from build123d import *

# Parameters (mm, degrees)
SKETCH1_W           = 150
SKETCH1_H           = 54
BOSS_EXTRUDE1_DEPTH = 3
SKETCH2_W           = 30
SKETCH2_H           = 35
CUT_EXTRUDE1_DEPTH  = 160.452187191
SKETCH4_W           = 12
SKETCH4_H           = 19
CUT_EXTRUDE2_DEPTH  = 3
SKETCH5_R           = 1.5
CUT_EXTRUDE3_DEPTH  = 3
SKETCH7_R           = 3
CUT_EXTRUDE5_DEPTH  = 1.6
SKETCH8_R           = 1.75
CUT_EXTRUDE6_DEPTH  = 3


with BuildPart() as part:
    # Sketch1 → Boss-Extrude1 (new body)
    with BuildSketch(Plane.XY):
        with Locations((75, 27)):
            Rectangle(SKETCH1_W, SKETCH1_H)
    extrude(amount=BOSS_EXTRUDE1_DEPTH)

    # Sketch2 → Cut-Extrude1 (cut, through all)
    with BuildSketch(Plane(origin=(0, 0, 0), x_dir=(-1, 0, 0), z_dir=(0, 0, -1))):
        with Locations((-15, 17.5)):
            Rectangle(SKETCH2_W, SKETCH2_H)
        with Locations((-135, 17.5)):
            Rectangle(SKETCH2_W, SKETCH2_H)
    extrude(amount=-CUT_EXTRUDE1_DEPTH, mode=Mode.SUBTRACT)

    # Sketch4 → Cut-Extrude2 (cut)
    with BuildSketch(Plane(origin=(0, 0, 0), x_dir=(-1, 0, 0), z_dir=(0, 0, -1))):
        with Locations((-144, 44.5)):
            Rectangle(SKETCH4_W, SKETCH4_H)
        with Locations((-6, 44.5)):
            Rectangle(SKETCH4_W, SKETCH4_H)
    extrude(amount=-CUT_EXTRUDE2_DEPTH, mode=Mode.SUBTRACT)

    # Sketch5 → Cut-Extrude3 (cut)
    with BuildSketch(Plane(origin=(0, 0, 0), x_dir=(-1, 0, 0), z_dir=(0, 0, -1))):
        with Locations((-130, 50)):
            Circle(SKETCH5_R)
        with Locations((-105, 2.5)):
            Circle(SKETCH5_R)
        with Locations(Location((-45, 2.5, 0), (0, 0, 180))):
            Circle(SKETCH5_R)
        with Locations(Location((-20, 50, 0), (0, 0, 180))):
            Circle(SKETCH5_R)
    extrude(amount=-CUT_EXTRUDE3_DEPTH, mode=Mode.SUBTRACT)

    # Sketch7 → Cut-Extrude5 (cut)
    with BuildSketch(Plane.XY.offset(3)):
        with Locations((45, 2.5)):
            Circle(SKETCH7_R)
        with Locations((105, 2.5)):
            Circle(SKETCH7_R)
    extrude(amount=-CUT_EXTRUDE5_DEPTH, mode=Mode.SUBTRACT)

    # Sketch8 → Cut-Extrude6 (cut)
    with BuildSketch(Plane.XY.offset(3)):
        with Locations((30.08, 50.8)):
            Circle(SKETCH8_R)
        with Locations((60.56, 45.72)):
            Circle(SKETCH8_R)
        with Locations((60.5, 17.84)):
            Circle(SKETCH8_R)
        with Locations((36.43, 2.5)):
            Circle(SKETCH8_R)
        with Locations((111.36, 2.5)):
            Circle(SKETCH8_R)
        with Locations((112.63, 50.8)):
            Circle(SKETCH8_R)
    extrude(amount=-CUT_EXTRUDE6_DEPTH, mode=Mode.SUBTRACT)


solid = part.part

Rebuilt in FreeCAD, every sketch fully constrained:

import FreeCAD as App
import Part
import Sketcher

doc = App.newDocument("Part")
params = doc.addObject("Spreadsheet::Sheet", "Params")
for row, (alias, value) in enumerate([
    ("sketch1_width", "150 mm"),
    ("sketch1_height", "54 mm"),
    ("pad1_length", "3 mm"),
    ("sketch2_width", "30 mm"),
    ("sketch2_height", "35 mm"),
    ("sketch3_width", "12 mm"),
    ("sketch3_height", "19 mm"),
    ("pocket2_length", "3 mm"),
    ("sketch4_diameter", "3 mm"),
    ("pocket3_length", "3 mm"),
    ("sketch5_diameter", "6 mm"),
    ("pocket4_length", "1.6 mm"),
    ("sketch6_diameter", "3.5 mm"),
    ("pocket5_length", "3 mm"),
], start=1):
    params.set(f"A{row}", alias)
    params.set(f"B{row}", "=" + value)
    params.setAlias(f"B{row}", alias)

body = doc.addObject("PartDesign::Body", "Body")

# Sketch on XY plane
sketch1 = body.newObject("Sketcher::SketchObject", "Sketch")
sketch1.AttachmentSupport = (doc.getObject("XY_Plane"), [""])
sketch1.MapMode = "FlatFace"
sketch1.addGeometry([
    Part.LineSegment(App.Vector(0, 54, 0), App.Vector(0, 0, 0)),
    Part.LineSegment(App.Vector(0, 0, 0), App.Vector(150, 0, 0)),
    Part.LineSegment(App.Vector(150, 0, 0), App.Vector(150, 54, 0)),
    Part.LineSegment(App.Vector(150, 54, 0), App.Vector(0, 54, 0)),
], False)
sketch1.addConstraint([
    Sketcher.Constraint("Coincident", 0, 2, 1, 1),
    Sketcher.Constraint("Coincident", 1, 2, 2, 1),
    Sketcher.Constraint("Coincident", 2, 2, 3, 1),
    Sketcher.Constraint("Coincident", 3, 2, 0, 1),
    Sketcher.Constraint("Vertical", 0),
    Sketcher.Constraint("Horizontal", 1),
    Sketcher.Constraint("Vertical", 2),
    Sketcher.Constraint("Horizontal", 3),
    Sketcher.Constraint("Coincident", 0, 2, -1, 1),
    Sketcher.Constraint("DistanceX", 1, 1, 1, 2, 150.0),
    Sketcher.Constraint("DistanceY", 0, 2, 0, 1, 54.0),
])
sketch1.setExpression("Constraints[9]", "Params.sketch1_width")
sketch1.setExpression("Constraints[10]", "Params.sketch1_height")
pad1 = body.newObject("PartDesign::Pad", "Pad")
pad1.Profile = sketch1
pad1.setExpression("Length", "Params.pad1_length")

# Sketch on XY plane
sketch2 = body.newObject("Sketcher::SketchObject", "Sketch001")
sketch2.AttachmentSupport = (doc.getObject("XY_Plane"), [""])
sketch2.MapMode = "FlatFace"
sketch2.addGeometry([
    Part.LineSegment(App.Vector(30, 35, 0), App.Vector(30, 0, 0)),  # 0
    Part.LineSegment(App.Vector(30, 0, 0), App.Vector(0, 0, 0)),  # 1
    Part.LineSegment(App.Vector(0, 0, 0), App.Vector(0, 35, 0)),  # 2
    Part.LineSegment(App.Vector(0, 35, 0), App.Vector(30, 35, 0)),  # 3
    Part.LineSegment(App.Vector(150, 35, 0), App.Vector(150, 0, 0)),  # 4
    Part.LineSegment(App.Vector(150, 0, 0), App.Vector(120, 0, 0)),  # 5
    Part.LineSegment(App.Vector(120, 0, 0), App.Vector(120, 35, 0)),  # 6
    Part.LineSegment(App.Vector(120, 35, 0), App.Vector(150, 35, 0)),  # 7
], False)
sketch2.addConstraint([
    Sketcher.Constraint("Coincident", 0, 2, 1, 1),
    Sketcher.Constraint("Coincident", 1, 2, 2, 1),
    Sketcher.Constraint("Coincident", 2, 2, 3, 1),
    Sketcher.Constraint("Coincident", 3, 2, 0, 1),
    Sketcher.Constraint("Coincident", 4, 2, 5, 1),
    Sketcher.Constraint("Coincident", 5, 2, 6, 1),
    Sketcher.Constraint("Coincident", 6, 2, 7, 1),
    Sketcher.Constraint("Coincident", 7, 2, 4, 1),
    Sketcher.Constraint("Vertical", 0),
    Sketcher.Constraint("Horizontal", 1),
    Sketcher.Constraint("Vertical", 2),
    Sketcher.Constraint("Horizontal", 3),
    Sketcher.Constraint("Vertical", 4),
    Sketcher.Constraint("Horizontal", 5),
    Sketcher.Constraint("Vertical", 6),
    Sketcher.Constraint("Horizontal", 7),
    Sketcher.Constraint("Coincident", 1, 2, -1, 1),
    Sketcher.Constraint("PointOnObject", 4, 2, -1),
    Sketcher.Constraint("Horizontal", 3, 2, 6, 2),
    Sketcher.Constraint("Equal", 3, 5),
    Sketcher.Constraint("DistanceX", 1, 2, 1, 1, 30.0),
    Sketcher.Constraint("DistanceY", 0, 2, 0, 1, 35.0),
    Sketcher.Constraint("DistanceX", -1, 1, 4, 2, 150.0),
])
sketch2.setExpression("Constraints[20]", "Params.sketch2_width")
sketch2.setExpression("Constraints[21]", "Params.sketch2_height")
pocket1 = body.newObject("PartDesign::Pocket", "Pocket")
pocket1.Profile = sketch2
pocket1.Type = "ThroughAll"
pocket1.Reversed = True

# Sketch on XY plane
sketch3 = body.newObject("Sketcher::SketchObject", "Sketch002")
sketch3.AttachmentSupport = (doc.getObject("XY_Plane"), [""])
sketch3.MapMode = "FlatFace"
sketch3.addGeometry([
    Part.LineSegment(App.Vector(150, 54, 0), App.Vector(150, 35, 0)),  # 0
    Part.LineSegment(App.Vector(150, 35, 0), App.Vector(138, 35, 0)),  # 1
    Part.LineSegment(App.Vector(138, 35, 0), App.Vector(138, 54, 0)),  # 2
    Part.LineSegment(App.Vector(138, 54, 0), App.Vector(150, 54, 0)),  # 3
    Part.LineSegment(App.Vector(12, 54, 0), App.Vector(12, 35, 0)),  # 4
    Part.LineSegment(App.Vector(12, 35, 0), App.Vector(0, 35, 0)),  # 5
    Part.LineSegment(App.Vector(0, 35, 0), App.Vector(0, 54, 0)),  # 6
    Part.LineSegment(App.Vector(0, 54, 0), App.Vector(12, 54, 0)),  # 7
], False)
sketch3.addConstraint([
    Sketcher.Constraint("Coincident", 0, 2, 1, 1),
    Sketcher.Constraint("Coincident", 1, 2, 2, 1),
    Sketcher.Constraint("Coincident", 2, 2, 3, 1),
    Sketcher.Constraint("Coincident", 3, 2, 0, 1),
    Sketcher.Constraint("Coincident", 4, 2, 5, 1),
    Sketcher.Constraint("Coincident", 5, 2, 6, 1),
    Sketcher.Constraint("Coincident", 6, 2, 7, 1),
    Sketcher.Constraint("Coincident", 7, 2, 4, 1),
    Sketcher.Constraint("Vertical", 0),
    Sketcher.Constraint("Horizontal", 1),
    Sketcher.Constraint("Vertical", 2),
    Sketcher.Constraint("Horizontal", 3),
    Sketcher.Constraint("Vertical", 4),
    Sketcher.Constraint("Horizontal", 5),
    Sketcher.Constraint("Vertical", 6),
    Sketcher.Constraint("Horizontal", 7),
    Sketcher.Constraint("PointOnObject", 5, 2, -2),
    Sketcher.Constraint("Horizontal", 1, 2, 4, 2),
    Sketcher.Constraint("Horizontal", 3, 2, 6, 2),
    Sketcher.Constraint("Equal", 3, 5),
    Sketcher.Constraint("DistanceX", 1, 2, 1, 1, 12.0),
    Sketcher.Constraint("DistanceY", 0, 2, 0, 1, 19.0),
    Sketcher.Constraint("DistanceX", -1, 1, 0, 2, 150.0),
    Sketcher.Constraint("DistanceY", -1, 1, 0, 2, 35.0),
])
sketch3.setExpression("Constraints[20]", "Params.sketch3_width")
sketch3.setExpression("Constraints[21]", "Params.sketch3_height")
pocket2 = body.newObject("PartDesign::Pocket", "Pocket001")
pocket2.Profile = sketch3
pocket2.setExpression("Length", "Params.pocket2_length")
pocket2.Reversed = True

# Sketch on XY plane
sketch4 = body.newObject("Sketcher::SketchObject", "Sketch003")
sketch4.AttachmentSupport = (doc.getObject("XY_Plane"), [""])
sketch4.MapMode = "FlatFace"
sketch4.addGeometry([
    Part.Circle(App.Vector(130, 50, 0), App.Vector(0, 0, 1), 1.5),
    Part.Circle(App.Vector(105, 2.5, 0), App.Vector(0, 0, 1), 1.5),
    Part.Circle(App.Vector(45, 2.5, 0), App.Vector(0, 0, 1), 1.5),
    Part.Circle(App.Vector(20, 50, 0), App.Vector(0, 0, 1), 1.5),
], False)
sketch4.addConstraint([
    Sketcher.Constraint("Equal", 0, 1),
    Sketcher.Constraint("Equal", 1, 2),
    Sketcher.Constraint("Equal", 2, 3),
    Sketcher.Constraint("Horizontal", 1, 3, 2, 3),
    Sketcher.Constraint("Horizontal", 0, 3, 3, 3),
    Sketcher.Constraint("Diameter", 0, 3.0),
    Sketcher.Constraint("DistanceX", -1, 1, 0, 3, 130.0),
    Sketcher.Constraint("DistanceY", -1, 1, 0, 3, 50.0),
    Sketcher.Constraint("DistanceX", -1, 1, 1, 3, 105.0),
    Sketcher.Constraint("DistanceX", -1, 1, 2, 3, 45.0),
    Sketcher.Constraint("DistanceX", -1, 1, 3, 3, 20.0),
    Sketcher.Constraint("DistanceY", -1, 1, 1, 3, 2.5),
])
sketch4.setExpression("Constraints[5]", "Params.sketch4_diameter")
pocket3 = body.newObject("PartDesign::Pocket", "Pocket002")
pocket3.Profile = sketch4
pocket3.setExpression("Length", "Params.pocket3_length")
pocket3.Reversed = True

# Sketch on XY plane
sketch5 = body.newObject("Sketcher::SketchObject", "Sketch004")
sketch5.AttachmentSupport = (doc.getObject("XY_Plane"), [""])
sketch5.MapMode = "FlatFace"
sketch5.AttachmentOffset = App.Placement(App.Vector(0, 0, 3), App.Rotation())
sketch5.addGeometry([
    Part.Circle(App.Vector(45, 2.5, 0), App.Vector(0, 0, 1), 3),
    Part.Circle(App.Vector(105, 2.5, 0), App.Vector(0, 0, 1), 3),
], False)
sketch5.addConstraint([
    Sketcher.Constraint("Equal", 0, 1),
    Sketcher.Constraint("Horizontal", 0, 3, 1, 3),
    Sketcher.Constraint("Diameter", 0, 6.0),
    Sketcher.Constraint("DistanceX", -1, 1, 0, 3, 45.0),
    Sketcher.Constraint("DistanceX", -1, 1, 1, 3, 105.0),
    Sketcher.Constraint("DistanceY", -1, 1, 0, 3, 2.5),
])
sketch5.setExpression("Constraints[2]", "Params.sketch5_diameter")
pocket4 = body.newObject("PartDesign::Pocket", "Pocket003")
pocket4.Profile = sketch5
pocket4.setExpression("Length", "Params.pocket4_length")

# Sketch on XY plane
sketch6 = body.newObject("Sketcher::SketchObject", "Sketch005")
sketch6.AttachmentSupport = (doc.getObject("XY_Plane"), [""])
sketch6.MapMode = "FlatFace"
sketch6.AttachmentOffset = App.Placement(App.Vector(0, 0, 3), App.Rotation())
sketch6.addGeometry([
    Part.Circle(App.Vector(30.08, 50.8, 0), App.Vector(0, 0, 1), 1.75),  # 0
    Part.Circle(App.Vector(60.56, 45.72, 0), App.Vector(0, 0, 1), 1.75),  # 1
    Part.Circle(App.Vector(60.5, 17.84, 0), App.Vector(0, 0, 1), 1.75),  # 2
    Part.Circle(App.Vector(36.43, 2.5, 0), App.Vector(0, 0, 1), 1.75),  # 3
    Part.Circle(App.Vector(111.36, 2.5, 0), App.Vector(0, 0, 1), 1.75),  # 4
    Part.Circle(App.Vector(112.63, 50.8, 0), App.Vector(0, 0, 1), 1.75),  # 5
], False)
sketch6.addConstraint([
    Sketcher.Constraint("Equal", 0, 1),
    Sketcher.Constraint("Equal", 1, 2),
    Sketcher.Constraint("Equal", 2, 3),
    Sketcher.Constraint("Equal", 3, 4),
    Sketcher.Constraint("Equal", 4, 5),
    Sketcher.Constraint("Horizontal", 3, 3, 4, 3),
    Sketcher.Constraint("Horizontal", 0, 3, 5, 3),
    Sketcher.Constraint("Diameter", 0, 3.5),
    Sketcher.Constraint("DistanceY", -1, 1, 0, 3, 50.8),
    Sketcher.Constraint("DistanceX", -1, 1, 2, 3, 60.5),
    Sketcher.Constraint("DistanceY", -1, 1, 3, 3, 2.5),
    Sketcher.Constraint("DistanceX", 1, 3, 4, 3, 50.8),
    Sketcher.Constraint("DistanceX", 3, 3, 5, 3, 76.2),
    Sketcher.Constraint("DistanceX", -1, 1, 0, 3, 30.08),
    Sketcher.Constraint("DistanceX", -1, 1, 1, 3, 60.56),
    Sketcher.Constraint("DistanceY", -1, 1, 1, 3, 45.72),
    Sketcher.Constraint("DistanceY", -1, 1, 2, 3, 17.84),
    Sketcher.Constraint("DistanceX", -1, 1, 3, 3, 36.43),
])
sketch6.setExpression("Constraints[7]", "Params.sketch6_diameter")
pocket5 = body.newObject("PartDesign::Pocket", "Pocket004")
pocket5.Profile = sketch6
pocket5.setExpression("Length", "Params.pocket5_length")

doc.recompute()
